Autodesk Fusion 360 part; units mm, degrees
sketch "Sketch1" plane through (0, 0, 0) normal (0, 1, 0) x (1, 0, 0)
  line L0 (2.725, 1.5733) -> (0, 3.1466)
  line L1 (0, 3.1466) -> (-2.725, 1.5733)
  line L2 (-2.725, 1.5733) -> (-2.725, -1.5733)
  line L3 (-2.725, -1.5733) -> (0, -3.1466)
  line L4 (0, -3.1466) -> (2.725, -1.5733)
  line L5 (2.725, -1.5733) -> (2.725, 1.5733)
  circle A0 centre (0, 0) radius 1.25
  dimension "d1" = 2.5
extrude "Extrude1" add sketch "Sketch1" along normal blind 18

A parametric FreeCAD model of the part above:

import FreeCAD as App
import Part
import Sketcher

V = App.Vector
Q = App.Units.Quantity


def add_polygon(sketch, points):
    """Adds a closed chain of lines whose ends are joined by coincident constraints."""
    first, n = sketch.GeometryCount, len(points)
    for a, b in zip(points, points[1:] + points[:1]):
        sketch.addGeometry(Part.LineSegment(App.Vector(*a, 0), App.Vector(*b, 0)), False)
    for i in range(n):
        sketch.addConstraint(Sketcher.Constraint("Coincident", first + i, 2, first + (i + 1) % n, 1))

doc = App.newDocument("Part")
body = doc.addObject("PartDesign::Body", "Body")

sketch1 = body.newObject("Sketcher::SketchObject", "Sketch")
sketch1.AttachmentSupport = (doc.getObject("XZ_Plane"), [""])
sketch1.MapMode = "FlatFace"
add_polygon(sketch1, [(2.7, 1.6), (2.7, -1.6), (0, -3.1), (-2.7, -1.6), (-2.7, 1.6), (0, 3.1)])
sketch1.addGeometry(Part.Circle(V(0, 0, 0), V(0, 0, 1), 1.2), False)
sketch1.addConstraint([
    Sketcher.Constraint("Vertical", 0),
    Sketcher.Constraint("Vertical", 3),
    Sketcher.Constraint("Coincident", 6, 3, -1, 1),
    Sketcher.Constraint("Symmetric", 0, 2, 3, 2, -1, 1),
    Sketcher.Constraint("Symmetric", 1, 2, 4, 2, -1, 1),
    Sketcher.Constraint("PointOnObject", 1, 2, -2),
    Sketcher.Constraint("Parallel", 2, 5),
    Sketcher.Constraint("Horizontal", 0, 2, 2, 2),
    Sketcher.Constraint("Diameter", 6, 2.5),
    Sketcher.Constraint("Angle", 1, Q("-149.9997 deg")),
    Sketcher.Constraint("DistanceX", 2, 2, 0, 2, 5.45),
    Sketcher.Constraint("DistanceY", 1, 2, 3, 2, 4.72),
])
pad1 = body.newObject("PartDesign::Pad", "Pad")
pad1.Profile = sketch1
pad1.Length = 18
pad1.Reversed = True

doc.recompute()
